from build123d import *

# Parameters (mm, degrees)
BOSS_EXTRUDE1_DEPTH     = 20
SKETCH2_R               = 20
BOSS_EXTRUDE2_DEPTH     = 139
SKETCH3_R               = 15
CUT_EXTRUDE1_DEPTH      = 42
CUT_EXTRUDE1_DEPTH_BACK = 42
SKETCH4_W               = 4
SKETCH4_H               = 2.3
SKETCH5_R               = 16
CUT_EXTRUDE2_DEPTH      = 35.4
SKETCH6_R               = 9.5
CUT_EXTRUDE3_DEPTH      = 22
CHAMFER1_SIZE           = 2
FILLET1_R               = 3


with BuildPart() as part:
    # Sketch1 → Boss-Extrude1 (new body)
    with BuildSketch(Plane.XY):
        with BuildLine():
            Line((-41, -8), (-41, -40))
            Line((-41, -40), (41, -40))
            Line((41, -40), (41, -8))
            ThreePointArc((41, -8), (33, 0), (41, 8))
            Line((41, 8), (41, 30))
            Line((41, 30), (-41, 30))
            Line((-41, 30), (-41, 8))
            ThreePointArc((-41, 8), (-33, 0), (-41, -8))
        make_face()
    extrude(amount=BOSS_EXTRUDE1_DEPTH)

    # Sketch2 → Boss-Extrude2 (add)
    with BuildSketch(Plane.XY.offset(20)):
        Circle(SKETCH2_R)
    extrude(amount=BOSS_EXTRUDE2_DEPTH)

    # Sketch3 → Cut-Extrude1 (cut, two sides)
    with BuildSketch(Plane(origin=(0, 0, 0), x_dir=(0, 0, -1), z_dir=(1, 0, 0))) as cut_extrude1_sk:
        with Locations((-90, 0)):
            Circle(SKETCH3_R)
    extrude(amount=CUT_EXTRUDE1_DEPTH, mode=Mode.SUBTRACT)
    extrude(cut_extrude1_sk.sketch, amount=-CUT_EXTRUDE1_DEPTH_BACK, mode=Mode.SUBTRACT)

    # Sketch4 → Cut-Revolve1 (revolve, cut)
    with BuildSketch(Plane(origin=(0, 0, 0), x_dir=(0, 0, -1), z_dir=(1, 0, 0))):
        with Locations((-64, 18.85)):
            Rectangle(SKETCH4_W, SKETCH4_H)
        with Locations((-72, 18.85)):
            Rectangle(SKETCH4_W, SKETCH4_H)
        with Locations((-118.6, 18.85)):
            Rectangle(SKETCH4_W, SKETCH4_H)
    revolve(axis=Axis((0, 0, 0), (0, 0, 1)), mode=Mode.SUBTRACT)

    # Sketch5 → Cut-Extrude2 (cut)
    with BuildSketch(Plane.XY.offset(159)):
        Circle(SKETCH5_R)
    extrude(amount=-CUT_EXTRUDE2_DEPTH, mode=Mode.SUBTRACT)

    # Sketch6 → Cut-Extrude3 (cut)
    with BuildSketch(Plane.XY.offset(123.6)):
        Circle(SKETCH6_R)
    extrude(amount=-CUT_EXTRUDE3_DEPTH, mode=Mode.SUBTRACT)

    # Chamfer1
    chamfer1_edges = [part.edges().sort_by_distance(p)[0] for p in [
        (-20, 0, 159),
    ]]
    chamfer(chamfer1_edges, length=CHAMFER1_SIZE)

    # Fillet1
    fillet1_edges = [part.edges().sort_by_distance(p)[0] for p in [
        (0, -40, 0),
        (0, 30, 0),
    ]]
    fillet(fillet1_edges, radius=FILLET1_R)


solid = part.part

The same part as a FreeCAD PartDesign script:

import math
import FreeCAD as App
import Part
import Sketcher
from FreeCAD import Vector


def edges_at(feature, points):
    """Names of the edges that pass closest to the given points."""
    edges = feature.Shape.Edges
    near = lambda p: min(range(len(edges)), key=lambda i: edges[i].distToShape(Part.Vertex(*p))[0])
    return sorted({f"Edge{near(p) + 1}" for p in points})

doc = App.newDocument("Part")
body = doc.addObject("PartDesign::Body", "Body")

# Sketch on XY plane
sketch1 = doc.addObject("Sketcher::SketchObject", "Sketch")
body.addObject(sketch1)
sketch1.AttachmentSupport = (doc.XY_Plane, [""])
sketch1.MapMode = "FlatFace"
sketch1.addGeometry([
    Part.LineSegment(Vector(-41, -8, 0), Vector(-41, -40, 0)),  # 0
    Part.LineSegment(Vector(-41, -40, 0), Vector(41, -40, 0)),  # 1
    Part.LineSegment(Vector(41, -40, 0), Vector(41, -8, 0)),  # 2
    Part.ArcOfCircle(Part.Circle(Vector(41, 0, 0), Vector(0, 0, 1), 8), math.radians(90), math.radians(270)),  # 3
    Part.LineSegment(Vector(41, 8, 0), Vector(41, 30, 0)),  # 4
    Part.LineSegment(Vector(41, 30, 0), Vector(-41, 30, 0)),  # 5
    Part.LineSegment(Vector(-41, 30, 0), Vector(-41, 8, 0)),  # 6
    Part.ArcOfCircle(Part.Circle(Vector(-41, 0, 0), Vector(0, 0, 1), 8), math.radians(-90), math.radians(90)),  # 7
], False)
sketch1.addConstraint([
    Sketcher.Constraint("Coincident", 0, 2, 1, 1),
    Sketcher.Constraint("Coincident", 1, 2, 2, 1),
    Sketcher.Constraint("Coincident", 2, 2, 3, 2),
    Sketcher.Constraint("Coincident", 3, 1, 4, 1),
    Sketcher.Constraint("Coincident", 4, 2, 5, 1),
    Sketcher.Constraint("Coincident", 5, 2, 6, 1),
    Sketcher.Constraint("Coincident", 6, 2, 7, 2),
    Sketcher.Constraint("Coincident", 7, 1, 0, 1),
    Sketcher.Constraint("Vertical", 0),
    Sketcher.Constraint("Horizontal", 1),
    Sketcher.Constraint("Vertical", 2),
    Sketcher.Constraint("Vertical", 4),
    Sketcher.Constraint("Horizontal", 5),
    Sketcher.Constraint("Vertical", 6),
    Sketcher.Constraint("Equal", 3, 7),
    Sketcher.Constraint("Symmetric", 3, 3, 7, 3, -1, 1),
    Sketcher.Constraint("Symmetric", 3, 1, 6, 2, -2),
    Sketcher.Constraint("Vertical", 7, 3, 0, 2),
    Sketcher.Constraint("Vertical", 3, 3, 1, 2),
    Sketcher.Constraint("Vertical", 2, 2, 3, 1),
    Sketcher.Constraint("Radius", 3, 8.0),
    Sketcher.Constraint("DistanceX", 1, 1, 1, 2, 82.0),
    Sketcher.Constraint("DistanceY", 0, 2, 0, 1, 32.0),
    Sketcher.Constraint("DistanceY", 4, 1, 4, 2, 22.0),
])
pad1 = doc.addObject("PartDesign::Pad", "Pad")
body.addObject(pad1)
pad1.Profile = sketch1
pad1.Length = 20

# Sketch on XY plane
sketch2 = doc.addObject("Sketcher::SketchObject", "Sketch001")
body.addObject(sketch2)
sketch2.AttachmentSupport = (doc.XY_Plane, [""])
sketch2.MapMode = "FlatFace"
sketch2.AttachmentOffset = App.Placement(Vector(0, 0, 20), App.Rotation())
sketch2.addGeometry(Part.Circle(Vector(0, 0, 0), Vector(0, 0, 1), 20), False)
sketch2.addConstraint([
    Sketcher.Constraint("Coincident", 0, 3, -1, 1),
    Sketcher.Constraint("Diameter", 0, 40.0),
])
pad2 = doc.addObject("PartDesign::Pad", "Pad001")
body.addObject(pad2)
pad2.Profile = sketch2
pad2.Length = 139

# Sketch on YZ plane
sketch3 = doc.addObject("Sketcher::SketchObject", "Sketch002")
body.addObject(sketch3)
sketch3.AttachmentSupport = (doc.YZ_Plane, [""])
sketch3.MapMode = "FlatFace"
sketch3.addGeometry(Part.Circle(Vector(0, 90, 0), Vector(0, 0, 1), 15), False)
sketch3.addConstraint([
    Sketcher.Constraint("PointOnObject", 0, 3, -2),
    Sketcher.Constraint("Diameter", 0, 30.0),
    Sketcher.Constraint("DistanceY", -1, 1, 0, 3, 90.0),
])
pocket1 = doc.addObject("PartDesign::Pocket", "Pocket")
body.addObject(pocket1)
pocket1.Profile = sketch3
pocket1.Type = "ThroughAll"
pocket1.Midplane = True

# Sketch on YZ plane
sketch4 = doc.addObject("Sketcher::SketchObject", "Sketch003")
body.addObject(sketch4)
sketch4.AttachmentSupport = (doc.YZ_Plane, [""])
sketch4.MapMode = "FlatFace"
sketch4.addGeometry([
    Part.LineSegment(Vector(20, 66, 0), Vector(17.7, 66, 0)),  # 0
    Part.LineSegment(Vector(17.7, 66, 0), Vector(17.7, 62, 0)),  # 1
    Part.LineSegment(Vector(17.7, 62, 0), Vector(20, 62, 0)),  # 2
    Part.LineSegment(Vector(20, 62, 0), Vector(20, 66, 0)),  # 3
    Part.LineSegment(Vector(20, 74, 0), Vector(17.7, 74, 0)),  # 4
    Part.LineSegment(Vector(17.7, 74, 0), Vector(17.7, 70, 0)),  # 5
    Part.LineSegment(Vector(17.7, 70, 0), Vector(20, 70, 0)),  # 6
    Part.LineSegment(Vector(20, 70, 0), Vector(20, 74, 0)),  # 7
    Part.LineSegment(Vector(20, 120.6, 0), Vector(17.7, 120.6, 0)),  # 8
    Part.LineSegment(Vector(17.7, 120.6, 0), Vector(17.7, 116.6, 0)),  # 9
    Part.LineSegment(Vector(17.7, 116.6, 0), Vector(20, 116.6, 0)),  # 10
    Part.LineSegment(Vector(20, 116.6, 0), Vector(20, 120.6, 0)),  # 11
], False)
sketch4.addConstraint([
    Sketcher.Constraint("Coincident", 0, 2, 1, 1),
    Sketcher.Constraint("Coincident", 1, 2, 2, 1),
    Sketcher.Constraint("Coincident", 2, 2, 3, 1),
    Sketcher.Constraint("Coincident", 3, 2, 0, 1),
    Sketcher.Constraint("Coincident", 4, 2, 5, 1),
    Sketcher.Constraint("Coincident", 5, 2, 6, 1),
    Sketcher.Constraint("Coincident", 6, 2, 7, 1),
    Sketcher.Constraint("Coincident", 7, 2, 4, 1),
    Sketcher.Constraint("Coincident", 8, 2, 9, 1),
    Sketcher.Constraint("Coincident", 9, 2, 10, 1),
    Sketcher.Constraint("Coincident", 10, 2, 11, 1),
    Sketcher.Constraint("Coincident", 11, 2, 8, 1),
    Sketcher.Constraint("Horizontal", 0),
    Sketcher.Constraint("Vertical", 1),
    Sketcher.Constraint("Horizontal", 2),
    Sketcher.Constraint("Vertical", 3),
    Sketcher.Constraint("Horizontal", 4),
    Sketcher.Constraint("Vertical", 5),
    Sketcher.Constraint("Horizontal", 6),
    Sketcher.Constraint("Vertical", 7),
    Sketcher.Constraint("Horizontal", 8),
    Sketcher.Constraint("Vertical", 9),
    Sketcher.Constraint("Horizontal", 10),
    Sketcher.Constraint("Vertical", 11),
    Sketcher.Constraint("Vertical", 1, 2, 4, 2),
    Sketcher.Constraint("Vertical", 3, 2, 6, 2),
    Sketcher.Constraint("Vertical", 5, 2, 8, 2),
    Sketcher.Constraint("Vertical", 7, 2, 10, 2),
    Sketcher.Constraint("Equal", 3, 5),
    Sketcher.Constraint("Equal", 7, 9),
    Sketcher.Constraint("DistanceY", 1, 2, 1, 1, 4.0),
    Sketcher.Constraint("DistanceX", 0, 2, 0, 1, 2.3),
    Sketcher.Constraint("DistanceY", -1, 1, 0, 2, 66.0),
    Sketcher.Constraint("DistanceX", -1, 1, 2, 2, 20.0),
    Sketcher.Constraint("DistanceY", -1, 1, 4, 2, 74.0),
    Sketcher.Constraint("DistanceY", -1, 1, 8, 2, 120.6),
])
groove = doc.addObject("PartDesign::Groove", "Groove")
body.addObject(groove)
groove.Profile = sketch4
groove.ReferenceAxis = (sketch4, ["V_Axis"])
groove.Angle = 360

# Sketch on XY plane
sketch5 = doc.addObject("Sketcher::SketchObject", "Sketch004")
body.addObject(sketch5)
sketch5.AttachmentSupport = (doc.XY_Plane, [""])
sketch5.MapMode = "FlatFace"
sketch5.AttachmentOffset = App.Placement(Vector(0, 0, 159), App.Rotation())
sketch5.addGeometry(Part.Circle(Vector(0, 0, 0), Vector(0, 0, 1), 16), False)
sketch5.addConstraint([
    Sketcher.Constraint("Coincident", 0, 3, -1, 1),
    Sketcher.Constraint("Diameter", 0, 32.0),
])
pocket2 = doc.addObject("PartDesign::Pocket", "Pocket001")
body.addObject(pocket2)
pocket2.Profile = sketch5
pocket2.Length = 35.4

# Sketch on XY plane
sketch6 = doc.addObject("Sketcher::SketchObject", "Sketch005")
body.addObject(sketch6)
sketch6.AttachmentSupport = (doc.XY_Plane, [""])
sketch6.MapMode = "FlatFace"
sketch6.AttachmentOffset = App.Placement(Vector(0, 0, 123.6), App.Rotation())
sketch6.addGeometry(Part.Circle(Vector(0, 0, 0), Vector(0, 0, 1), 10), False)
sketch6.addConstraint([
    Sketcher.Constraint("Coincident", 0, 3, -1, 1),
    Sketcher.Constraint("Diameter", 0, 19.0),
])
pocket3 = doc.addObject("PartDesign::Pocket", "Pocket002")
body.addObject(pocket3)
pocket3.Profile = sketch6
pocket3.Length = 22
doc.recompute()

chamfer = doc.addObject("PartDesign::Chamfer", "Chamfer")
body.addObject(chamfer)
chamfer.Base = (pocket3, edges_at(pocket3, [(-20, 0, 159)]))
chamfer.Size = 2
doc.recompute()

fillet = doc.addObject("PartDesign::Fillet", "Fillet")
body.addObject(fillet)
fillet.Base = (chamfer, edges_at(chamfer, [(0, -40, 0), (0, 30, 0)]))
fillet.Radius = 3

doc.recompute()
